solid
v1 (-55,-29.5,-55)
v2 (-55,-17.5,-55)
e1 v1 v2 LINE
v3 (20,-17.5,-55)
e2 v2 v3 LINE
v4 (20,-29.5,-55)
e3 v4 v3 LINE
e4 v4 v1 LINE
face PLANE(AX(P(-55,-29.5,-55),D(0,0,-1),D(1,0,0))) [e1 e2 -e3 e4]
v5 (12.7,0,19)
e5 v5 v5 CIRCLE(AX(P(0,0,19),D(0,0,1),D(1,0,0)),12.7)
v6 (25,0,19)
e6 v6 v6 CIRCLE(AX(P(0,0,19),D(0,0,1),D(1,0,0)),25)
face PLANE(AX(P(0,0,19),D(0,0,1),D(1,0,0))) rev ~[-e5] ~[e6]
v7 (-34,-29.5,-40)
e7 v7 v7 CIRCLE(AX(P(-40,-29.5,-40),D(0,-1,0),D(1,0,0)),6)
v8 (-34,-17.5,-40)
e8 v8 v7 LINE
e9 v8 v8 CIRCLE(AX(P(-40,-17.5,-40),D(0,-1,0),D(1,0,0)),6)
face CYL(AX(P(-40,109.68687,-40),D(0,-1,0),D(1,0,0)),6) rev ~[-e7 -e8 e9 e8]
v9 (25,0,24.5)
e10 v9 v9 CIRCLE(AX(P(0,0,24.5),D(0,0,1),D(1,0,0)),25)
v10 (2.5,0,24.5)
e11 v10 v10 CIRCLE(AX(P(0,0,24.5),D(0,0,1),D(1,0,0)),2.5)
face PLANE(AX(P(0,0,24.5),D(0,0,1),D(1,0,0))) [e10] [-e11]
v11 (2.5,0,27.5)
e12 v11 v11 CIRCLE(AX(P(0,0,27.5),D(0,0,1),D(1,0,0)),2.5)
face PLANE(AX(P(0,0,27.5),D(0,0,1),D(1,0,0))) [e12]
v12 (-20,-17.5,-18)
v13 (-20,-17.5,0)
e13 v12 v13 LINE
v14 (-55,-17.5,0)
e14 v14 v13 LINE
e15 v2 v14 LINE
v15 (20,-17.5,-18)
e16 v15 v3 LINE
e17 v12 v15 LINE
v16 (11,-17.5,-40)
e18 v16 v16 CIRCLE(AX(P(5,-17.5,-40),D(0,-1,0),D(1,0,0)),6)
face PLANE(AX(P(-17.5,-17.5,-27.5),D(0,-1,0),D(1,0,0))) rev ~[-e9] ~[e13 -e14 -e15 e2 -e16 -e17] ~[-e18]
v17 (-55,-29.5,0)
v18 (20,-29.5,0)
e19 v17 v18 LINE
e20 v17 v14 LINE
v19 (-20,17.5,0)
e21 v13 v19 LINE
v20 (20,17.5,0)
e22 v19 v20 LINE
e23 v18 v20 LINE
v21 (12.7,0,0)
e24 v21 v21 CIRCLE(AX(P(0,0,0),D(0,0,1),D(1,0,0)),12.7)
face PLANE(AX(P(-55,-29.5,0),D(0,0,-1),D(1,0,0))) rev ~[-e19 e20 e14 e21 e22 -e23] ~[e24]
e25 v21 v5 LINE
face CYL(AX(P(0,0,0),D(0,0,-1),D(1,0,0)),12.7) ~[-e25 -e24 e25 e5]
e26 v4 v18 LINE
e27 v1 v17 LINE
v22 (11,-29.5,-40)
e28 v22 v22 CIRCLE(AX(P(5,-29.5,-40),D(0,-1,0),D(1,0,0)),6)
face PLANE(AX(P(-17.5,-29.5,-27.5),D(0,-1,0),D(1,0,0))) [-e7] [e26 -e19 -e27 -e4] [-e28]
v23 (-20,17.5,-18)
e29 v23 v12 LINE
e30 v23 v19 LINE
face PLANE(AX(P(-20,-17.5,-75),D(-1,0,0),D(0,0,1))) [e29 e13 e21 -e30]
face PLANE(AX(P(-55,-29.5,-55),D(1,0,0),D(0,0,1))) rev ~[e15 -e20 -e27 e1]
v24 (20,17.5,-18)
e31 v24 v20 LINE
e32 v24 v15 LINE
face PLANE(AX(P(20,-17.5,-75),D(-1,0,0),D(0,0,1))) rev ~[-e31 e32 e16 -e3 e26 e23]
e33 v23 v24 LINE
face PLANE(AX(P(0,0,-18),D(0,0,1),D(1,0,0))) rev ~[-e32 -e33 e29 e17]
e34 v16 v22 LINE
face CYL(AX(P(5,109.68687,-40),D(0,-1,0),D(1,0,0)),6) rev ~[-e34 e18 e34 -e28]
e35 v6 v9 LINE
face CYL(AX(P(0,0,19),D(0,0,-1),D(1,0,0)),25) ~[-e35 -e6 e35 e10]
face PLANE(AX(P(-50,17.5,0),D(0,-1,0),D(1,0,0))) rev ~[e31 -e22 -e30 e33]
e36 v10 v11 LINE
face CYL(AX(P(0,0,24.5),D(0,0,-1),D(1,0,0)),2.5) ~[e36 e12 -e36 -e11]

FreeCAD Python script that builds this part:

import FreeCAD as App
import Part
import Sketcher
Q = App.Units.Quantity

doc = App.newDocument("Part")
body = doc.addObject("PartDesign::Body", "Body")

sketch1 = body.newObject("Sketcher::SketchObject", "Sketch")
sketch1.AttachmentSupport = (doc.getObject("XY_Plane"), [""])
sketch1.MapMode = "FlatFace"
sketch1.addGeometry([
    Part.LineSegment(App.Vector(-50, 17.5, 0), App.Vector(-50, -17.5, 0)),
    Part.LineSegment(App.Vector(-50, -17.5, 0), App.Vector(50, -17.5, 0)),
    Part.LineSegment(App.Vector(50, -17.5, 0), App.Vector(50, 17.5, 0)),
    Part.LineSegment(App.Vector(50, 17.5, 0), App.Vector(-50, 17.5, 0)),
], False)
sketch1.addConstraint([
    Sketcher.Constraint("Coincident", 0, 2, 1, 1),
    Sketcher.Constraint("Coincident", 1, 2, 2, 1),
    Sketcher.Constraint("Coincident", 2, 2, 3, 1),
    Sketcher.Constraint("Coincident", 3, 2, 0, 1),
    Sketcher.Constraint("Vertical", 0),
    Sketcher.Constraint("Horizontal", 1),
    Sketcher.Constraint("Vertical", 2),
    Sketcher.Constraint("Horizontal", 3),
    Sketcher.Constraint("Symmetric", 0, 2, 2, 2, -1, 1),
    Sketcher.Constraint("DistanceX", 1, 1, 1, 2, Q("100 mm")),
    Sketcher.Constraint("DistanceY", 0, 2, 0, 1, Q("35 mm")),
])
pad1 = body.newObject("PartDesign::Pad", "Pad")
pad1.Profile = sketch1
pad1.Length = 18
pad1.Reversed = True

sketch2 = body.newObject("Sketcher::SketchObject", "Sketch001")
sketch2.AttachmentSupport = (doc.getObject("XY_Plane"), [""])
sketch2.MapMode = "FlatFace"
sketch2.addGeometry([
    Part.Circle(App.Vector(-38, 0, 0), App.Vector(0, 0, 1), 6),
    Part.Circle(App.Vector(38, 0, 0), App.Vector(0, 0, 1), 6),
], False)
sketch2.addConstraint([
    Sketcher.Constraint("Equal", 0, 1),
    Sketcher.Constraint("Symmetric", 0, 3, 1, 3, -1, 1),
    Sketcher.Constraint("PointOnObject", 0, 3, -1),
    Sketcher.Constraint("Diameter", 0, Q("12 mm")),
    Sketcher.Constraint("DistanceX", 0, 3, -1, 1, Q("38 mm")),
])
doc.recompute()
hole = body.newObject("PartDesign::Hole", "Hole")
hole.Profile = sketch2
hole.ThreadType = "None"
hole.Diameter = 12
hole.DepthType = "ThroughAll"

sketch3 = body.newObject("Sketcher::SketchObject", "Sketch002")
sketch3.AttachmentSupport = (doc.getObject("XY_Plane"), [""])
sketch3.MapMode = "FlatFace"
sketch3.addGeometry(Part.Circle(App.Vector(0, 0, 0), App.Vector(0, 0, 1), 12.7), False)
sketch3.addConstraint([
    Sketcher.Constraint("Coincident", 0, 3, -1, 1),
    Sketcher.Constraint("Diameter", 0, Q("25.4 mm")),
])
pad2 = body.newObject("PartDesign::Pad", "Pad001")
pad2.Profile = sketch3
pad2.Length = 19

sketch4 = body.newObject("Sketcher::SketchObject", "Sketch003")
sketch4.AttachmentSupport = (doc.getObject("XY_Plane"), [""])
sketch4.MapMode = "FlatFace"
sketch4.AttachmentOffset = App.Placement(App.Vector(0, 0, 19), App.Rotation())
sketch4.addGeometry(Part.Circle(App.Vector(0, 0, 0), App.Vector(0, 0, 1), 25), False)
sketch4.addConstraint([
    Sketcher.Constraint("Coincident", 0, 3, -1, 1),
    Sketcher.Constraint("Diameter", 0, Q("50 mm")),
])
pad3 = body.newObject("PartDesign::Pad", "Pad002")
pad3.Profile = sketch4
pad3.Length = 5.5

sketch5 = body.newObject("Sketcher::SketchObject", "Sketch004")
sketch5.AttachmentSupport = (doc.getObject("XY_Plane"), [""])
sketch5.MapMode = "FlatFace"
sketch5.AttachmentOffset = App.Placement(App.Vector(0, 0, 24.5), App.Rotation())
sketch5.addGeometry(Part.Circle(App.Vector(0, 0, 0), App.Vector(0, 0, 1), 2.5), False)
sketch5.addConstraint([
    Sketcher.Constraint("Coincident", 0, 3, -1, 1),
    Sketcher.Constraint("Diameter", 0, Q("5 mm")),
])
pad4 = body.newObject("PartDesign::Pad", "Pad003")
pad4.Profile = sketch5
pad4.Length = 3

sketch6 = body.newObject("Sketcher::SketchObject", "Sketch005")
sketch6.AttachmentSupport = (doc.getObject("XZ_Plane"), [""])
sketch6.MapMode = "FlatFace"
sketch6.AttachmentOffset = App.Placement(App.Vector(0, 0, 17.5), App.Rotation())
sketch6.addGeometry([
    Part.LineSegment(App.Vector(-50, -75, 0), App.Vector(50, -75, 0)),
    Part.LineSegment(App.Vector(50, -75, 0), App.Vector(50, 0, 0)),
    Part.LineSegment(App.Vector(50, 0, 0), App.Vector(-50, 0, 0)),
    Part.LineSegment(App.Vector(-50, 0, 0), App.Vector(-50, -75, 0)),
], False)
sketch6.addConstraint([
    Sketcher.Constraint("Coincident", 0, 2, 1, 1),
    Sketcher.Constraint("Coincident", 1, 2, 2, 1),
    Sketcher.Constraint("Coincident", 2, 2, 3, 1),
    Sketcher.Constraint("Coincident", 3, 2, 0, 1),
    Sketcher.Constraint("Horizontal", 0),
    Sketcher.Constraint("Vertical", 1),
    Sketcher.Constraint("Horizontal", 2),
    Sketcher.Constraint("Vertical", 3),
    Sketcher.Constraint("Symmetric", 1, 2, 2, 2, -1, 1),
    Sketcher.Constraint("DistanceX", 0, 1, 0, 2, Q("100 mm")),
    Sketcher.Constraint("DistanceY", 1, 1, 1, 2, Q("75 mm")),
])
pad5 = body.newObject("PartDesign::Pad", "Pad004")
pad5.Profile = sketch6
pad5.Length = 12

sketch7 = body.newObject("Sketcher::SketchObject", "Sketch006")
sketch7.AttachmentSupport = (doc.getObject("XY_Plane"), [""])
sketch7.MapMode = "FlatFace"
sketch7.AttachmentOffset = App.Placement(App.Vector(0, 0, -18), App.Rotation())
sketch7.addGeometry([
    Part.LineSegment(App.Vector(20, -17.5, 0), App.Vector(20, 17.5, 0)),
    Part.LineSegment(App.Vector(20, 17.5, 0), App.Vector(50, 17.5, 0)),
    Part.LineSegment(App.Vector(50, 17.5, 0), App.Vector(50, -17.5, 0)),
    Part.LineSegment(App.Vector(50, -17.5, 0), App.Vector(20, -17.5, 0)),
    Part.LineSegment(App.Vector(-50, -17.5, 0), App.Vector(-50, 17.5, 0)),
    Part.LineSegment(App.Vector(-50, 17.5, 0), App.Vector(-20, 17.5, 0)),
    Part.LineSegment(App.Vector(-20, 17.5, 0), App.Vector(-20, -17.5, 0)),
    Part.LineSegment(App.Vector(-20, -17.5, 0), App.Vector(-50, -17.5, 0)),
], False)
sketch7.addConstraint([
    Sketcher.Constraint("Coincident", 0, 2, 1, 1),
    Sketcher.Constraint("Coincident", 1, 2, 2, 1),
    Sketcher.Constraint("Coincident", 2, 2, 3, 1),
    Sketcher.Constraint("Coincident", 3, 2, 0, 1),
    Sketcher.Constraint("Coincident", 4, 2, 5, 1),
    Sketcher.Constraint("Coincident", 5, 2, 6, 1),
    Sketcher.Constraint("Coincident", 6, 2, 7, 1),
    Sketcher.Constraint("Coincident", 7, 2, 4, 1),
    Sketcher.Constraint("Vertical", 0),
    Sketcher.Constraint("Horizontal", 1),
    Sketcher.Constraint("Vertical", 2),
    Sketcher.Constraint("Horizontal", 3),
    Sketcher.Constraint("Vertical", 4),
    Sketcher.Constraint("Horizontal", 5),
    Sketcher.Constraint("Vertical", 6),
    Sketcher.Constraint("Horizontal", 7),
    Sketcher.Constraint("Symmetric", 2, 2, 4, 2, -1, 1),
    Sketcher.Constraint("Symmetric", 0, 2, 6, 2, -1, 1),
    Sketcher.Constraint("Horizontal", 1, 2, 4, 2),
    Sketcher.Constraint("DistanceX", 1, 1, 1, 2, Q("30 mm")),
    Sketcher.Constraint("DistanceY", 0, 1, 0, 2, Q("35 mm")),
    Sketcher.Constraint("DistanceX", -1, 1, 0, 2, Q("20 mm")),
])
pocket1 = body.newObject("PartDesign::Pocket", "Pocket")
pocket1.Profile = sketch7
pocket1.Length = 25
pocket1.Reversed = True

sketch8 = body.newObject("Sketcher::SketchObject", "Sketch007")
sketch8.AttachmentSupport = (doc.getObject("XZ_Plane"), [""])
sketch8.MapMode = "FlatFace"
sketch8.AttachmentOffset = App.Placement(App.Vector(0, 0, 17.5), App.Rotation())
sketch8.addGeometry([
    Part.LineSegment(App.Vector(50, 0, 0), App.Vector(50, -75, 0)),
    Part.LineSegment(App.Vector(50, -75, 0), App.Vector(20, -75, 0)),
    Part.LineSegment(App.Vector(20, -75, 0), App.Vector(20, 0, 0)),
    Part.LineSegment(App.Vector(20, 0, 0), App.Vector(50, 0, 0)),
    Part.LineSegment(App.Vector(-20, 0, 0), App.Vector(-20, -75, 0)),
    Part.LineSegment(App.Vector(-20, -75, 0), App.Vector(-50, -75, 0)),
    Part.LineSegment(App.Vector(-50, -75, 0), App.Vector(-50, 0, 0)),
    Part.LineSegment(App.Vector(-50, 0, 0), App.Vector(-20, 0, 0)),
], False)
sketch8.addConstraint([
    Sketcher.Constraint("Coincident", 0, 2, 1, 1),
    Sketcher.Constraint("Coincident", 1, 2, 2, 1),
    Sketcher.Constraint("Coincident", 2, 2, 3, 1),
    Sketcher.Constraint("Coincident", 3, 2, 0, 1),
    Sketcher.Constraint("Coincident", 4, 2, 5, 1),
    Sketcher.Constraint("Coincident", 5, 2, 6, 1),
    Sketcher.Constraint("Coincident", 6, 2, 7, 1),
    Sketcher.Constraint("Coincident", 7, 2, 4, 1),
    Sketcher.Constraint("Vertical", 0),
    Sketcher.Constraint("Horizontal", 1),
    Sketcher.Constraint("Vertical", 2),
    Sketcher.Constraint("Horizontal", 3),
    Sketcher.Constraint("Vertical", 4),
    Sketcher.Constraint("Horizontal", 5),
    Sketcher.Constraint("Vertical", 6),
    Sketcher.Constraint("Horizontal", 7),
    Sketcher.Constraint("Symmetric", 3, 2, 6, 2, -1, 1),
    Sketcher.Constraint("Symmetric", 1, 2, 4, 2, -2),
    Sketcher.Constraint("PointOnObject", 2, 2, -1),
    Sketcher.Constraint("DistanceX", 1, 2, 1, 1, Q("30 mm")),
    Sketcher.Constraint("DistanceY", 0, 2, 0, 1, Q("75 mm")),
    Sketcher.Constraint("DistanceX", -1, 1, 0, 2, Q("50 mm")),
])
pocket2 = body.newObject("PartDesign::Pocket", "Pocket001")
pocket2.Profile = sketch8
pocket2.Length = 25
pocket2.Reversed = True

sketch9 = body.newObject("Sketcher::SketchObject", "Sketch008")
sketch9.AttachmentSupport = (doc.getObject("XZ_Plane"), [""])
sketch9.MapMode = "FlatFace"
sketch9.AttachmentOffset = App.Placement(App.Vector(0, 0, 29.5), App.Rotation())
sketch9.addGeometry([
    Part.LineSegment(App.Vector(-55, 0, 0), App.Vector(-55, -55, 0)),
    Part.LineSegment(App.Vector(-55, -55, 0), App.Vector(20, -55, 0)),
    Part.LineSegment(App.Vector(20, -55, 0), App.Vector(20, 0, 0)),
    Part.LineSegment(App.Vector(20, 0, 0), App.Vector(-55, 0, 0)),
], False)
sketch9.addConstraint([
    Sketcher.Constraint("Coincident", 0, 2, 1, 1),
    Sketcher.Constraint("Coincident", 1, 2, 2, 1),
    Sketcher.Constraint("Coincident", 2, 2, 3, 1),
    Sketcher.Constraint("Coincident", 3, 2, 0, 1),
    Sketcher.Constraint("Vertical", 0),
    Sketcher.Constraint("Horizontal", 1),
    Sketcher.Constraint("Vertical", 2),
    Sketcher.Constraint("Horizontal", 3),
    Sketcher.Constraint("PointOnObject", 2, 2, -1),
    Sketcher.Constraint("DistanceX", 1, 1, 1, 2, Q("75 mm")),
    Sketcher.Constraint("DistanceY", 0, 2, 0, 1, Q("55 mm")),
    Sketcher.Constraint("DistanceX", 0, 2, -1, 1, Q("55 mm")),
])
pad6 = body.newObject("PartDesign::Pad", "Pad005")
pad6.Profile = sketch9
pad6.Length = 12
pad6.Reversed = True

sketch10 = body.newObject("Sketcher::SketchObject", "Sketch009")
sketch10.AttachmentSupport = (doc.getObject("XZ_Plane"), [""])
sketch10.MapMode = "FlatFace"
sketch10.AttachmentOffset = App.Placement(App.Vector(0, 0, 29.5), App.Rotation())
sketch10.addGeometry([
    Part.LineSegment(App.Vector(-20, -55, 0), App.Vector(-20, -75, 0)),
    Part.LineSegment(App.Vector(-20, -75, 0), App.Vector(20, -75, 0)),
    Part.LineSegment(App.Vector(20, -75, 0), App.Vector(20, -55, 0)),
    Part.LineSegment(App.Vector(20, -55, 0), App.Vector(-20, -55, 0)),
], False)
sketch10.addConstraint([
    Sketcher.Constraint("Coincident", 0, 2, 1, 1),
    Sketcher.Constraint("Coincident", 1, 2, 2, 1),
    Sketcher.Constraint("Coincident", 2, 2, 3, 1),
    Sketcher.Constraint("Coincident", 3, 2, 0, 1),
    Sketcher.Constraint("Vertical", 0),
    Sketcher.Constraint("Horizontal", 1),
    Sketcher.Constraint("Vertical", 2),
    Sketcher.Constraint("Horizontal", 3),
    Sketcher.Constraint("DistanceX", 1, 1, 1, 2, Q("40 mm")),
    Sketcher.Constraint("DistanceY", 0, 2, 0, 1, Q("20 mm")),
    Sketcher.Constraint("DistanceX", 0, 2, -1, 1, Q("20 mm")),
    Sketcher.Constraint("DistanceY", 0, 2, -1, 1, Q("75 mm")),
])
pocket3 = body.newObject("PartDesign::Pocket", "Pocket002")
pocket3.Profile = sketch10
pocket3.Length = 25

sketch11 = body.newObject("Sketcher::SketchObject", "Sketch010")
sketch11.AttachmentSupport = (doc.getObject("XZ_Plane"), [""])
sketch11.MapMode = "FlatFace"
sketch11.AttachmentOffset = App.Placement(App.Vector(0, 0, 17.5), App.Rotation())
sketch11.addGeometry([
    Part.Circle(App.Vector(5, -40, 0), App.Vector(0, 0, 1), 6),
    Part.Circle(App.Vector(-40, -40, 0), App.Vector(0, 0, 1), 6),
], False)
sketch11.addConstraint([
    Sketcher.Constraint("Equal", 0, 1),
    Sketcher.Constraint("Horizontal", 0, 3, 1, 3),
    Sketcher.Constraint("Diameter", 0, Q("12 mm")),
    Sketcher.Constraint("DistanceX", -1, 1, 0, 3, Q("5 mm")),
    Sketcher.Constraint("DistanceY", 0, 3, -1, 1, Q("40 mm")),
    Sketcher.Constraint("DistanceX", 1, 3, -1, 1, Q("40 mm")),
])
doc.recompute()
hole2 = body.newObject("PartDesign::Hole", "Hole001")
hole2.Profile = sketch11
hole2.ThreadType = "None"
hole2.Diameter = 12
hole2.DepthType = "ThroughAll"
hole2.Reversed = True

doc.recompute()
